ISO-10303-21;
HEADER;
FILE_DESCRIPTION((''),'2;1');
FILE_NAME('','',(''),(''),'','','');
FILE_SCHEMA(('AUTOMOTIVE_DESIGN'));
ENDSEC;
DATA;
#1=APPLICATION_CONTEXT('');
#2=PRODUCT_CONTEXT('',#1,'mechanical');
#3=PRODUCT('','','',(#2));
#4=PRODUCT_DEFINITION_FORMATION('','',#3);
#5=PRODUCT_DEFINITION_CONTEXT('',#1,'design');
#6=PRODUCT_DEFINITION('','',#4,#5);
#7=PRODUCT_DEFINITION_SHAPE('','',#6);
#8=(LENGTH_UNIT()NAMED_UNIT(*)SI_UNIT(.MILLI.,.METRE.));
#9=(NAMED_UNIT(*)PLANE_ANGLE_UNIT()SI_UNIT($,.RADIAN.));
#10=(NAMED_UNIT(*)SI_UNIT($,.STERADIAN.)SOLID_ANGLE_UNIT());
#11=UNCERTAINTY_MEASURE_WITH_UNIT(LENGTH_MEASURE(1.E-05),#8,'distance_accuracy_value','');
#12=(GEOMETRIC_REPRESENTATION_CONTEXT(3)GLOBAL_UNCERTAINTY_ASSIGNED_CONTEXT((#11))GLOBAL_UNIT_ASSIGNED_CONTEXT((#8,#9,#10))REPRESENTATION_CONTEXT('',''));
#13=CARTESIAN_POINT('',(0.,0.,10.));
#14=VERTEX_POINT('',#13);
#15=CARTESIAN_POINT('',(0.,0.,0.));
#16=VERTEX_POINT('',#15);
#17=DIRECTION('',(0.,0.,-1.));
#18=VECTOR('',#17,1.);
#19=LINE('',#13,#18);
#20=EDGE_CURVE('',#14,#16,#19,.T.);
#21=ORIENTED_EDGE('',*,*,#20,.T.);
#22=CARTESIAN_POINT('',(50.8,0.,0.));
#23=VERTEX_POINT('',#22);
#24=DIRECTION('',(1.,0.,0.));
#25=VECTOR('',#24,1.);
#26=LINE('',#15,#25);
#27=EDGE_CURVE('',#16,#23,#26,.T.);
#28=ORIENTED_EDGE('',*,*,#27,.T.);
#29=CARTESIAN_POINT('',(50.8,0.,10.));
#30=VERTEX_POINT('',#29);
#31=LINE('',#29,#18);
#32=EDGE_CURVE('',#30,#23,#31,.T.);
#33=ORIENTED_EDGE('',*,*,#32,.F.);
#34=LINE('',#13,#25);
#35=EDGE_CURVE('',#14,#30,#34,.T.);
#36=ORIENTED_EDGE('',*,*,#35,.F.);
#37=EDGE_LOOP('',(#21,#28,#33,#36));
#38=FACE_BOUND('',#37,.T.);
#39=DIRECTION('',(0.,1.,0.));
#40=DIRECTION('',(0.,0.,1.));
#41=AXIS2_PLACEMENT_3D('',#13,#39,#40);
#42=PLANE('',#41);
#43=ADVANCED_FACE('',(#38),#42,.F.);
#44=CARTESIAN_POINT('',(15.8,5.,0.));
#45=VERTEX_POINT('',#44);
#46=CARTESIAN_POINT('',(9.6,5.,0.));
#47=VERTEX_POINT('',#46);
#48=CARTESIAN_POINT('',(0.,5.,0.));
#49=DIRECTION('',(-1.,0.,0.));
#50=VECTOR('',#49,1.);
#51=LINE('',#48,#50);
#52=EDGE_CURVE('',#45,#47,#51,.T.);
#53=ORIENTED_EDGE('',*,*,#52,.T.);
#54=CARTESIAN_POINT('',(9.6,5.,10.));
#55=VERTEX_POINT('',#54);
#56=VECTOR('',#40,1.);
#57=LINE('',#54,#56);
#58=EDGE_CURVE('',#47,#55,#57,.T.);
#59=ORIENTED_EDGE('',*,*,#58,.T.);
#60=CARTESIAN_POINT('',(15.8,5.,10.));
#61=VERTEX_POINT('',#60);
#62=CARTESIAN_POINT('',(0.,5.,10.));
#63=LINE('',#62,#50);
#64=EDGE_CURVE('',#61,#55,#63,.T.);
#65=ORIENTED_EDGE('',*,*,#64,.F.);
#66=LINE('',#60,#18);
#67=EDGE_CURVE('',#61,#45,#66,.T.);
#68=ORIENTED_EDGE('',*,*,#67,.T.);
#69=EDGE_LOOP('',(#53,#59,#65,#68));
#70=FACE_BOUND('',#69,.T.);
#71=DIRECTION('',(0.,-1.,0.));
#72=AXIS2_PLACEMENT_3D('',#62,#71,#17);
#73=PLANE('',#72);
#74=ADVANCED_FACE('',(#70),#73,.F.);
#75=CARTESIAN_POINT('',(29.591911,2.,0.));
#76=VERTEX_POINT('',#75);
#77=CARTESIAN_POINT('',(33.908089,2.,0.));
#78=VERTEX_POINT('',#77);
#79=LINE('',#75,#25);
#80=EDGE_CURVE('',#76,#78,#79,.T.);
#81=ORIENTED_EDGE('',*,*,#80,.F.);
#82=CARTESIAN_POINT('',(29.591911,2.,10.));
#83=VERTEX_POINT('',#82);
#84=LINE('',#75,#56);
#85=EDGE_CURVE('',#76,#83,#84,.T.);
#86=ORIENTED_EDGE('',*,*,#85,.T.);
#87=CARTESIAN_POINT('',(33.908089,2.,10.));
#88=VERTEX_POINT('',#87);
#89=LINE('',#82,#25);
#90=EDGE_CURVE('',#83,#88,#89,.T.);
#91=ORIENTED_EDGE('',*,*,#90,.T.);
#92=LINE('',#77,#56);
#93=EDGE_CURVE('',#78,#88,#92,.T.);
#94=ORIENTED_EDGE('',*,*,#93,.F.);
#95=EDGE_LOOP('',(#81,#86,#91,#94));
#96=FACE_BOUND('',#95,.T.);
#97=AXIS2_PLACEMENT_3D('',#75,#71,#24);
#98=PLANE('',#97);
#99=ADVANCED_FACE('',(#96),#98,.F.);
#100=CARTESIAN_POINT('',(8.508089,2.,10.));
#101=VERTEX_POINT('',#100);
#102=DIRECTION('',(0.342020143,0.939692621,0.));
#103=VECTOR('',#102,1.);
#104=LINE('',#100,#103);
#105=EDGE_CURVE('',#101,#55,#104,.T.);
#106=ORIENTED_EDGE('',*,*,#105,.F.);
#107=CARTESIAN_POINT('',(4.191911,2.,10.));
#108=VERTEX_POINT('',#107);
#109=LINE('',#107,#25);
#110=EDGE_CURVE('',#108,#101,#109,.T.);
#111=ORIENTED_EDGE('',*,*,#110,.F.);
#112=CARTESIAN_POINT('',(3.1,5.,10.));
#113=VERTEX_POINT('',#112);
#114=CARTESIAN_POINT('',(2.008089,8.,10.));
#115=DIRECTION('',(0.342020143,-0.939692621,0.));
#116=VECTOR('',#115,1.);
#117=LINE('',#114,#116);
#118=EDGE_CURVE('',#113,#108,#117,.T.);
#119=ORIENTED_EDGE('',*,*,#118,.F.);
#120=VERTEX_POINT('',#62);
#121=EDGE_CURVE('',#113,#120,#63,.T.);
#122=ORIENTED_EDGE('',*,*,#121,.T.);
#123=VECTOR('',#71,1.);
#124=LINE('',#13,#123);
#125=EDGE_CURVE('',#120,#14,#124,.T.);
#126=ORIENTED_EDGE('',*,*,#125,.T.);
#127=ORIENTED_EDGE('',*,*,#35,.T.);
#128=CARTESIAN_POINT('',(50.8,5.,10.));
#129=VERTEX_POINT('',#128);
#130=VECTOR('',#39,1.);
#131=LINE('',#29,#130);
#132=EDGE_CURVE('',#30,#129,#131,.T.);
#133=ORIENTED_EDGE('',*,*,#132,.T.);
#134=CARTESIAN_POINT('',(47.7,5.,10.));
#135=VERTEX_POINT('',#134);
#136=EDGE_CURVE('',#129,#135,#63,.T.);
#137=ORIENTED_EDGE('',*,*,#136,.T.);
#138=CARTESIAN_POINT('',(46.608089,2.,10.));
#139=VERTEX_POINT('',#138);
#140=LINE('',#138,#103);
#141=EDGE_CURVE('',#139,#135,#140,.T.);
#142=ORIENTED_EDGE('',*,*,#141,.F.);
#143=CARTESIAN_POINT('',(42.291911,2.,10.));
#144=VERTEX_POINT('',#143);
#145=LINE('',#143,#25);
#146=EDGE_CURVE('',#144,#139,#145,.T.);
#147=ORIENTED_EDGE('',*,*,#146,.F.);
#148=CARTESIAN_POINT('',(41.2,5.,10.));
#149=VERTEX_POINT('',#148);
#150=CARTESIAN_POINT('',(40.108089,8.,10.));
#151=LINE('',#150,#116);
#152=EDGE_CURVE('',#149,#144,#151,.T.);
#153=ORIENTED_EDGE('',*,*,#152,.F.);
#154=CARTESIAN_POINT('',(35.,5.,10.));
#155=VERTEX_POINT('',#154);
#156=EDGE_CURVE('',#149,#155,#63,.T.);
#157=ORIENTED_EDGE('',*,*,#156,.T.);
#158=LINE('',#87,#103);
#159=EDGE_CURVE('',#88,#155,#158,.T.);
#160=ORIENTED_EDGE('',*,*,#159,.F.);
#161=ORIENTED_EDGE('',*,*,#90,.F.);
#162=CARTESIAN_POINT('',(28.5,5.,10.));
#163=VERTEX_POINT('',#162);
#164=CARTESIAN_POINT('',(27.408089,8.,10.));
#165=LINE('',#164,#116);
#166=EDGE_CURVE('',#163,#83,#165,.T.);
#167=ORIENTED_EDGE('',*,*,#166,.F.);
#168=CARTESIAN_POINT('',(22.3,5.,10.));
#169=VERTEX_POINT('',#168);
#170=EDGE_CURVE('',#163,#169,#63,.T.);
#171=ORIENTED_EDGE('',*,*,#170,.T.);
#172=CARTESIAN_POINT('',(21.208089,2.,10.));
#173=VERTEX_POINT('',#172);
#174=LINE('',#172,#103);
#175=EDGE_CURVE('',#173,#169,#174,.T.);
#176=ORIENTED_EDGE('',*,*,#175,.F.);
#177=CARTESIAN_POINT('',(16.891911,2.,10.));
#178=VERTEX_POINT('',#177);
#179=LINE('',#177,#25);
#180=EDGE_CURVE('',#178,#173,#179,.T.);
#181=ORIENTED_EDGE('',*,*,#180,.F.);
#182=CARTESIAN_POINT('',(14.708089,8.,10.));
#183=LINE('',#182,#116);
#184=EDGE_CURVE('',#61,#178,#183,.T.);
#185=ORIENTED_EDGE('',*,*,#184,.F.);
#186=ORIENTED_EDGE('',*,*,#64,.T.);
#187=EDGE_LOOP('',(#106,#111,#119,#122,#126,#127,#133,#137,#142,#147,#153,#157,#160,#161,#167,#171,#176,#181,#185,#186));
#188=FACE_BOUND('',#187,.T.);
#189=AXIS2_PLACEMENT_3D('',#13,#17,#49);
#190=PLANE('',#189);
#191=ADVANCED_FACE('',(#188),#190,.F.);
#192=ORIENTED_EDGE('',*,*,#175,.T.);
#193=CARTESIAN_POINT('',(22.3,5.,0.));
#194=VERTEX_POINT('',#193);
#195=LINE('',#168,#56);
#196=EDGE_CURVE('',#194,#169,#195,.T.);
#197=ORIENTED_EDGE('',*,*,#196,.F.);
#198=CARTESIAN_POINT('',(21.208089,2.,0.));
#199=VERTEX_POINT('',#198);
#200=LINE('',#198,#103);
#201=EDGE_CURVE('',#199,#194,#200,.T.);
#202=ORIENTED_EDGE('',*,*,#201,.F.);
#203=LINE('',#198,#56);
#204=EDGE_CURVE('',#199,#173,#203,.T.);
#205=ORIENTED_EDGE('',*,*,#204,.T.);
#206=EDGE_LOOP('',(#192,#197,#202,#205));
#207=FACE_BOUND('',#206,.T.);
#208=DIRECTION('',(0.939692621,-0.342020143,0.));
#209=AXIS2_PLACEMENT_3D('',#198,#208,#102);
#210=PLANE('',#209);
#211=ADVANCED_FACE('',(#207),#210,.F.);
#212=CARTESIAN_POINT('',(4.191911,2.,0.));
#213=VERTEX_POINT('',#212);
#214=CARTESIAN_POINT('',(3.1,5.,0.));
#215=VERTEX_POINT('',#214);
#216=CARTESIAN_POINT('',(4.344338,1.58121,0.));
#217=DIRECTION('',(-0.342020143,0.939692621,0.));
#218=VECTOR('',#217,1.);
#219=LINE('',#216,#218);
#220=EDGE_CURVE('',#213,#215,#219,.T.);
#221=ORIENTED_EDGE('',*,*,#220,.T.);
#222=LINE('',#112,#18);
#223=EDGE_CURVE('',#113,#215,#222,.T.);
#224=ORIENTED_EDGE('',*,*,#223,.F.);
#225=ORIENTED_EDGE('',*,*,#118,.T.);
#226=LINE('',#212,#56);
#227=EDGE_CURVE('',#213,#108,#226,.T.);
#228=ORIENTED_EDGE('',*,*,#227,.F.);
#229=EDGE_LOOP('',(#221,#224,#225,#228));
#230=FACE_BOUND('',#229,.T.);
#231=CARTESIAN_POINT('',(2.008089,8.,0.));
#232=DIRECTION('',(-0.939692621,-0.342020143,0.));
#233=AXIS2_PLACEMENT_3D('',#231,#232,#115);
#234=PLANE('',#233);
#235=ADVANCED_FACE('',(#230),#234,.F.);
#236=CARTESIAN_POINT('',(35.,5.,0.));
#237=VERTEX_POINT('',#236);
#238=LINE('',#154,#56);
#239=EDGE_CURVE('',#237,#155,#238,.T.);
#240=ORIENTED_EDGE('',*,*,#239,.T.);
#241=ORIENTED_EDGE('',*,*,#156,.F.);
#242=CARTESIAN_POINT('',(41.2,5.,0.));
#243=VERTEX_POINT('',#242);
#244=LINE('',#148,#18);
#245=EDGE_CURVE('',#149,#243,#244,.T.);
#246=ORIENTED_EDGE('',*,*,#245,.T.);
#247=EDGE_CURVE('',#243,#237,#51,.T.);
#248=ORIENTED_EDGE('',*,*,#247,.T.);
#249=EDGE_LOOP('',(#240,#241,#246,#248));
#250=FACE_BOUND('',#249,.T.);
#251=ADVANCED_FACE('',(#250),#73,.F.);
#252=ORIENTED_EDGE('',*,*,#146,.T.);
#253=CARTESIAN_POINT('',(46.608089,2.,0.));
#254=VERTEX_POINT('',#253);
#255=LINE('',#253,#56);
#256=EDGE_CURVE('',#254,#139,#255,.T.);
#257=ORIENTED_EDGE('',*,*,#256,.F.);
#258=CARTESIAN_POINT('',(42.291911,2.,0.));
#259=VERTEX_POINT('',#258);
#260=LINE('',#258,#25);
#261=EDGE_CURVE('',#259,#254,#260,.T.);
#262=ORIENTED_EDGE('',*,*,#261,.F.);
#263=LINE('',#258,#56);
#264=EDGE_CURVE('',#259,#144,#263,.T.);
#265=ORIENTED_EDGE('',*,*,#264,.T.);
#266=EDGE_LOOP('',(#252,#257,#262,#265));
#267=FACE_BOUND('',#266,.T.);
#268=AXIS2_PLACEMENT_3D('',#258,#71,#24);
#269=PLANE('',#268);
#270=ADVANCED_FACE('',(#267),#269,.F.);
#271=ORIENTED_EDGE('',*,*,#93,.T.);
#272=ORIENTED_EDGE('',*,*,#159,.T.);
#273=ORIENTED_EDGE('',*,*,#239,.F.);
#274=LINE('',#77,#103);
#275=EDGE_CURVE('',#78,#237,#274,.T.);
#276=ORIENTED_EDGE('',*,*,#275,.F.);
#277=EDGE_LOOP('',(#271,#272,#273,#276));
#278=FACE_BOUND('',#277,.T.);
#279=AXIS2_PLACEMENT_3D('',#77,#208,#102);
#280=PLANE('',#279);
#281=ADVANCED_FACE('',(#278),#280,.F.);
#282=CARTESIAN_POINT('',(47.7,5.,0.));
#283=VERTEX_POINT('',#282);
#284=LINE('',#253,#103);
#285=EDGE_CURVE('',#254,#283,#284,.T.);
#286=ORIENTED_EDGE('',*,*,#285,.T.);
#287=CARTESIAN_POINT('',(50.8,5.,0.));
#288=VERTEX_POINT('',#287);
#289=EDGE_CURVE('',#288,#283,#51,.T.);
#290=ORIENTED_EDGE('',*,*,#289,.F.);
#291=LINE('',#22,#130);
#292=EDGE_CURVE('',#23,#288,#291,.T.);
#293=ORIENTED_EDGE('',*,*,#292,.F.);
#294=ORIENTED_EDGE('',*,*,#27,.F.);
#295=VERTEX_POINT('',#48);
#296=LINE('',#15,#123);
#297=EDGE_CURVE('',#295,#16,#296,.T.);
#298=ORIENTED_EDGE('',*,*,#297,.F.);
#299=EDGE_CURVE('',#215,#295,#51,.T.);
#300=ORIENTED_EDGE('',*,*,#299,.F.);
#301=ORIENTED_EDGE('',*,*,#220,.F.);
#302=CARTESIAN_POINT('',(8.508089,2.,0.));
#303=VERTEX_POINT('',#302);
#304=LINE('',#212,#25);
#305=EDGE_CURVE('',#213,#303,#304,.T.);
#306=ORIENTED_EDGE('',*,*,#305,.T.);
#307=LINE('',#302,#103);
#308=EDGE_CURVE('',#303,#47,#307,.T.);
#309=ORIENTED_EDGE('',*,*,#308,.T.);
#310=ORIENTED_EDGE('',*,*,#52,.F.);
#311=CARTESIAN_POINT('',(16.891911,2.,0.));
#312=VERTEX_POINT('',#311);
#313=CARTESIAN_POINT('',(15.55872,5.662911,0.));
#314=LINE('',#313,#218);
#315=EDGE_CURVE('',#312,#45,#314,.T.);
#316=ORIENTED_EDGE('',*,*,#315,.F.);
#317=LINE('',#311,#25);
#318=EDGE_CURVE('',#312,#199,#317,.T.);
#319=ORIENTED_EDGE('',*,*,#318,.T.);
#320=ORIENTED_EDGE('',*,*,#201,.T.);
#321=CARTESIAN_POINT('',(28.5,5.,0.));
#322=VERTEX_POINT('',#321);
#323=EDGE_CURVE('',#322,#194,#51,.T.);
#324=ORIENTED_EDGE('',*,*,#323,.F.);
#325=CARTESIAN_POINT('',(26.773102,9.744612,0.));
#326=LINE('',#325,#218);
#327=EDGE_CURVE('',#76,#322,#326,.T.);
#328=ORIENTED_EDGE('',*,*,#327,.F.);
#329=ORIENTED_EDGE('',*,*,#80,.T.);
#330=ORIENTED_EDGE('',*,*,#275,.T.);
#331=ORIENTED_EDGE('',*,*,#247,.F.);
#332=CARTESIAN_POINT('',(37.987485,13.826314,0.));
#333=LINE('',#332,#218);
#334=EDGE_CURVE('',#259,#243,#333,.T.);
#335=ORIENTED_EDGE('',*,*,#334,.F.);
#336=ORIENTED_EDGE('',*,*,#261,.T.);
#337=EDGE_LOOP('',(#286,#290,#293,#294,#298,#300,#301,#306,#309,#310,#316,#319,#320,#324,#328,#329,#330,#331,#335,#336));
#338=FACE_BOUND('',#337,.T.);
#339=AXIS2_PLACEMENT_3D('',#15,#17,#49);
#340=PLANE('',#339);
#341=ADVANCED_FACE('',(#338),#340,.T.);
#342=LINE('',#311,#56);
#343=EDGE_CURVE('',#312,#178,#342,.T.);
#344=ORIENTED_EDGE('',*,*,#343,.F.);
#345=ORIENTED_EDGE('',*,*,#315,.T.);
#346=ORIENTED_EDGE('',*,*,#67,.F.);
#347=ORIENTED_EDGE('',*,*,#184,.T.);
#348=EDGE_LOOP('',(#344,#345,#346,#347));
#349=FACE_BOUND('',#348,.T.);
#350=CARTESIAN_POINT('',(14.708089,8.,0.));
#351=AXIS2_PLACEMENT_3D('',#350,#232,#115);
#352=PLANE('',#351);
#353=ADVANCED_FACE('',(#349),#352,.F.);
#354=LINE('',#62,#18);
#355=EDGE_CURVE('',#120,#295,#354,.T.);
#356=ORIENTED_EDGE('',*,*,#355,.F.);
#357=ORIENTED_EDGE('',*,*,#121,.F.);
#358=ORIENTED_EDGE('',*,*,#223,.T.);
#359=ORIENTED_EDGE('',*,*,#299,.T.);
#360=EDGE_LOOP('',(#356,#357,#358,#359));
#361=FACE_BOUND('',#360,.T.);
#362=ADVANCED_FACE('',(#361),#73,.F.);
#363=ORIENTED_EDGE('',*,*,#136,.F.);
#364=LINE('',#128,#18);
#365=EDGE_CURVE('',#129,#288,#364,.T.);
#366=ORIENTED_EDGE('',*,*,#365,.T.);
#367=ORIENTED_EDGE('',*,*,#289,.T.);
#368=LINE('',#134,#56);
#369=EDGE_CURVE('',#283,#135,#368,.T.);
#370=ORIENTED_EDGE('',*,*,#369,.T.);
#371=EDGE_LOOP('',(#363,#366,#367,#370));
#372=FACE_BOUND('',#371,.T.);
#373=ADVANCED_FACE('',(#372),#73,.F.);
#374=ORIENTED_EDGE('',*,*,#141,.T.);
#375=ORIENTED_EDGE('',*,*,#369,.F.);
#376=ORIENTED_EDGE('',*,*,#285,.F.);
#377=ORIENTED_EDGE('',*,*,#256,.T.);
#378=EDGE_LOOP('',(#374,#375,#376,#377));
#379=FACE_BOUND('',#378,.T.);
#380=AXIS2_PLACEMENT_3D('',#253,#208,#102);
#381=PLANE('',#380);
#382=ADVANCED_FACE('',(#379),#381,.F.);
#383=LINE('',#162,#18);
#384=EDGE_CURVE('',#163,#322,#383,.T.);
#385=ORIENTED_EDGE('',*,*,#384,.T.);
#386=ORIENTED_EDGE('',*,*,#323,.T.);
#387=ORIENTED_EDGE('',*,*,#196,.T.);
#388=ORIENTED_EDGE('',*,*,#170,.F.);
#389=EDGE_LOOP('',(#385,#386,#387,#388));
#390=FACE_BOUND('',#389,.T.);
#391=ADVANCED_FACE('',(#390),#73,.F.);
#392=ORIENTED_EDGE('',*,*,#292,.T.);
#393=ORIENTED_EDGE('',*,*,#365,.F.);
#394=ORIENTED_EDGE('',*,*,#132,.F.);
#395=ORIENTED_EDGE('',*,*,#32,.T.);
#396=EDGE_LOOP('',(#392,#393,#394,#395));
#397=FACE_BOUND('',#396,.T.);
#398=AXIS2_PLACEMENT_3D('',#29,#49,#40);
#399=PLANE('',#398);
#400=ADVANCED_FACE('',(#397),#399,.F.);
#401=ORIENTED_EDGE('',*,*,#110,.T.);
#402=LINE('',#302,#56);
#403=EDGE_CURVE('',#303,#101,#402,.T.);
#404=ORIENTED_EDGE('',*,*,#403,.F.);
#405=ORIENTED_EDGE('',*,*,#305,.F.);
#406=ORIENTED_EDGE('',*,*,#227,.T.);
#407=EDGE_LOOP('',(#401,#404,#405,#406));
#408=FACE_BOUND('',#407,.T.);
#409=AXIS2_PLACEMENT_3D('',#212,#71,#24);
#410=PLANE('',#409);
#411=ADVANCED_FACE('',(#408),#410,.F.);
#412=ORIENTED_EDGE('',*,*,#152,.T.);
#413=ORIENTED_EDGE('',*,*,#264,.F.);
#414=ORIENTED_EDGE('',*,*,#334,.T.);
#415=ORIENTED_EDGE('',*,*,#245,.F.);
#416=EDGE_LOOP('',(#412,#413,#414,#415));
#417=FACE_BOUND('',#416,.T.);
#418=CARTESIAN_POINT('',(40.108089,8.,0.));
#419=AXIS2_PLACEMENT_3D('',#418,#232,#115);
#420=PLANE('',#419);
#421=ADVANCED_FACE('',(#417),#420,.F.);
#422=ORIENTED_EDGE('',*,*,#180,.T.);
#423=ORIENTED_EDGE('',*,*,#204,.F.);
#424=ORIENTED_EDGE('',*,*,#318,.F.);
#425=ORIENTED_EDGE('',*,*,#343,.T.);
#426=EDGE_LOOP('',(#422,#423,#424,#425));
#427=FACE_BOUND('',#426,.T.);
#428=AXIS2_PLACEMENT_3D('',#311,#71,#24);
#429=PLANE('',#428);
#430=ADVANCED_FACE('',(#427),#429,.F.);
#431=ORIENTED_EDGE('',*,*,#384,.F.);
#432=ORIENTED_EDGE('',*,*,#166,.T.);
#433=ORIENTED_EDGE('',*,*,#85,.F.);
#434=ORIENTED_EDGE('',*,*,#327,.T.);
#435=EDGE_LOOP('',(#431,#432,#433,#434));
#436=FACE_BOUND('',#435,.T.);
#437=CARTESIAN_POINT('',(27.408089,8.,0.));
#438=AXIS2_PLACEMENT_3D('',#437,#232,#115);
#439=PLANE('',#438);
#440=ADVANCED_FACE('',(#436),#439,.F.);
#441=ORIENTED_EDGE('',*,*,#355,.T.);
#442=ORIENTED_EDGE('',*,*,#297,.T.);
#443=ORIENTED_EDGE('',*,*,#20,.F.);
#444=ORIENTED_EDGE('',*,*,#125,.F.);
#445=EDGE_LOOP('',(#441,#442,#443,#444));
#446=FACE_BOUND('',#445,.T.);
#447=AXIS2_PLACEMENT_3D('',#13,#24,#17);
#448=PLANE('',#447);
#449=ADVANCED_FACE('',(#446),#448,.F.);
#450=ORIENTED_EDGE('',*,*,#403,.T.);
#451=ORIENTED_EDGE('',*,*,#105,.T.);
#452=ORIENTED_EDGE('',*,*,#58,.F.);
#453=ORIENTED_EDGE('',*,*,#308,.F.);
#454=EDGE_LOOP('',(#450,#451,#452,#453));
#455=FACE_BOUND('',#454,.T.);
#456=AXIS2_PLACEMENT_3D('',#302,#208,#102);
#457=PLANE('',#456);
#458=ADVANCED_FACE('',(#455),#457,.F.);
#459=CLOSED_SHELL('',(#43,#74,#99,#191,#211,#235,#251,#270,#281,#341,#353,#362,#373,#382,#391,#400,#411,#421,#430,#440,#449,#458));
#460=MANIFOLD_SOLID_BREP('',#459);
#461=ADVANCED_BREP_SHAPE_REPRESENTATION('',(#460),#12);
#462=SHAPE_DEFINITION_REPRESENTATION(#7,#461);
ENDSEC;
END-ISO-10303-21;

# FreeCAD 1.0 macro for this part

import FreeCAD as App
import Part
import Sketcher

V = App.Vector
Q = App.Units.Quantity


def add_polygon(sketch, points):
    """Adds a closed chain of lines whose ends are joined by coincident constraints."""
    first, n = sketch.GeometryCount, len(points)
    for a, b in zip(points, points[1:] + points[:1]):
        sketch.addGeometry(Part.LineSegment(App.Vector(*a, 0), App.Vector(*b, 0)), False)
    for i in range(n):
        sketch.addConstraint(Sketcher.Constraint("Coincident", first + i, 2, first + (i + 1) % n, 1))

doc = App.newDocument("Part")
body = doc.addObject("PartDesign::Body", "Body")

sketch1 = body.newObject("Sketcher::SketchObject", "Sketch")
sketch1.AttachmentSupport = (doc.getObject("XY_Plane"), [""])
sketch1.MapMode = "FlatFace"
add_polygon(sketch1, [(0, 5), (0, 0), (50.8, 0), (50.8, 5)])
sketch1.addConstraint(Sketcher.Constraint("Vertical", 0))
sketch1.addConstraint(Sketcher.Constraint("Horizontal", 1))
sketch1.addConstraint(Sketcher.Constraint("Vertical", 2))
sketch1.addConstraint(Sketcher.Constraint("Horizontal", 3))
sketch1.addConstraint(Sketcher.Constraint("Coincident", 0, 2, -1, 1))
sketch1.addConstraint(Sketcher.Constraint("DistanceY", 0, 2, 0, 1, Q("5 mm")))
sketch1.addConstraint(Sketcher.Constraint("DistanceX", 1, 1, 1, 2, Q("50.8 mm")))
pad1 = body.newObject("PartDesign::Pad", "Pad")
pad1.Profile = sketch1
pad1.Length = 10

sketch2 = body.newObject("Sketcher::SketchObject", "Sketch001")
sketch2.AttachmentSupport = (doc.getObject("XY_Plane"), [""])
sketch2.MapMode = "FlatFace"
sketch2.AttachmentOffset = App.Placement(V(0, 0, 10), App.Rotation())
add_polygon(sketch2, [(2.008089, 8), (4.191911, 2), (8.508089, 2), (10.691911, 8)])
sketch2.addConstraint(Sketcher.Constraint("Horizontal", 1))
sketch2.addConstraint(Sketcher.Constraint("Horizontal", 3))
sketch2.addConstraint(Sketcher.Constraint("Equal", 0, 2))
sketch2.addConstraint(Sketcher.Constraint("Angle", 0, Q("-70 deg")))
sketch2.addConstraint(Sketcher.Constraint("DistanceY", -1, 1, 0, 2, Q("2 mm")))
sketch2.addConstraint(Sketcher.Constraint("DistanceY", -1, 1, 2, 2, Q("8 mm")))
sketch2.addConstraint(Sketcher.Constraint("DistanceX", 0, 2, 2, 2, Q("6.5 mm")))
sketch2.addConstraint(Sketcher.Constraint("DistanceX", -1, 1, 0, 2, Q("4.191911 mm")))
pocket1 = body.newObject("PartDesign::Pocket", "Pocket")
pocket1.Profile = sketch2
pocket1.Type = "ThroughAll"
doc.recompute()

linearpattern = body.newObject("PartDesign::LinearPattern", "LinearPattern")
linearpattern.Originals = [pocket1]
linearpattern.Direction = (doc.getObject("X_Axis"), [""])
linearpattern.Mode = "offset"
linearpattern.Offset = 12.7
linearpattern.Occurrences = 4
body.Tip = linearpattern

doc.recompute()
